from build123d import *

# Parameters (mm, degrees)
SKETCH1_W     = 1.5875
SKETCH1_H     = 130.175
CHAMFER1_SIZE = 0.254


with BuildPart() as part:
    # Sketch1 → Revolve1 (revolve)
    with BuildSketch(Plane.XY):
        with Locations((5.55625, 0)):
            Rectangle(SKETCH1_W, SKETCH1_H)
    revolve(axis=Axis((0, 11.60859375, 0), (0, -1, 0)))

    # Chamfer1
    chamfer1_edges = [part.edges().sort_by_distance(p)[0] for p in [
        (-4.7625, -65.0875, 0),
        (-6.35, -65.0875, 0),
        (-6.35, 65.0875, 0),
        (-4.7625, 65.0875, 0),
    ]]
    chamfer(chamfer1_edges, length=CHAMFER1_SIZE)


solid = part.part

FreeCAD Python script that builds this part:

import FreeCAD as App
import Part
import Sketcher
Q = App.Units.Quantity


def edges_at(feature, points):
    """Names of the edges that pass closest to the given points."""
    edges = feature.Shape.Edges
    near = lambda p: min(range(len(edges)), key=lambda i: edges[i].distToShape(Part.Vertex(*p))[0])
    return sorted({f"Edge{near(p) + 1}" for p in points})

doc = App.newDocument("Part")
body = doc.addObject("PartDesign::Body", "Body")

# Sketch on XY plane
sketch1 = doc.addObject("Sketcher::SketchObject", "Sketch")
body.addObject(sketch1)
sketch1.AttachmentSupport = (doc.XY_Plane, [""])
sketch1.MapMode = "FlatFace"
sketch1.addGeometry([
    Part.LineSegment(App.Vector(4.7625, 65.0875, 0), App.Vector(4.7625, -65.0875, 0)),
    Part.LineSegment(App.Vector(4.7625, -65.0875, 0), App.Vector(6.35, -65.0875, 0)),
    Part.LineSegment(App.Vector(6.35, -65.0875, 0), App.Vector(6.35, 65.0875, 0)),
    Part.LineSegment(App.Vector(6.35, 65.0875, 0), App.Vector(4.7625, 65.0875, 0)),
], False)
sketch1.addConstraint([
    Sketcher.Constraint("Coincident", 0, 2, 1, 1),
    Sketcher.Constraint("Coincident", 1, 2, 2, 1),
    Sketcher.Constraint("Coincident", 2, 2, 3, 1),
    Sketcher.Constraint("Coincident", 3, 2, 0, 1),
    Sketcher.Constraint("Vertical", 0),
    Sketcher.Constraint("Horizontal", 1),
    Sketcher.Constraint("Vertical", 2),
    Sketcher.Constraint("Horizontal", 3),
    Sketcher.Constraint("DistanceX", 1, 1, 1, 2, Q("0.0625 in")),
    Sketcher.Constraint("DistanceY", 0, 2, 0, 1, Q("5.125 in")),
    Sketcher.Constraint("DistanceX", -1, 1, 1, 2, Q("0.25 in")),
    Sketcher.Constraint("DistanceY", 0, 2, -1, 1, Q("2.5625 in")),
])
revolution = doc.addObject("PartDesign::Revolution", "Revolution")
body.addObject(revolution)
revolution.Profile = sketch1
revolution.ReferenceAxis = (sketch1, ["V_Axis"])
revolution.Angle = 360
doc.recompute()

chamfer = doc.addObject("PartDesign::Chamfer", "Chamfer")
body.addObject(chamfer)
chamfer.Base = (revolution, edges_at(revolution, [
    (-4.763, -65.088, 0),
    (-6.35, -65.088, 0),
    (-6.35, 65.088, 0),
    (-4.763, 65.088, 0),
]))
chamfer.Size = Q("0.01 in")

doc.recompute()
